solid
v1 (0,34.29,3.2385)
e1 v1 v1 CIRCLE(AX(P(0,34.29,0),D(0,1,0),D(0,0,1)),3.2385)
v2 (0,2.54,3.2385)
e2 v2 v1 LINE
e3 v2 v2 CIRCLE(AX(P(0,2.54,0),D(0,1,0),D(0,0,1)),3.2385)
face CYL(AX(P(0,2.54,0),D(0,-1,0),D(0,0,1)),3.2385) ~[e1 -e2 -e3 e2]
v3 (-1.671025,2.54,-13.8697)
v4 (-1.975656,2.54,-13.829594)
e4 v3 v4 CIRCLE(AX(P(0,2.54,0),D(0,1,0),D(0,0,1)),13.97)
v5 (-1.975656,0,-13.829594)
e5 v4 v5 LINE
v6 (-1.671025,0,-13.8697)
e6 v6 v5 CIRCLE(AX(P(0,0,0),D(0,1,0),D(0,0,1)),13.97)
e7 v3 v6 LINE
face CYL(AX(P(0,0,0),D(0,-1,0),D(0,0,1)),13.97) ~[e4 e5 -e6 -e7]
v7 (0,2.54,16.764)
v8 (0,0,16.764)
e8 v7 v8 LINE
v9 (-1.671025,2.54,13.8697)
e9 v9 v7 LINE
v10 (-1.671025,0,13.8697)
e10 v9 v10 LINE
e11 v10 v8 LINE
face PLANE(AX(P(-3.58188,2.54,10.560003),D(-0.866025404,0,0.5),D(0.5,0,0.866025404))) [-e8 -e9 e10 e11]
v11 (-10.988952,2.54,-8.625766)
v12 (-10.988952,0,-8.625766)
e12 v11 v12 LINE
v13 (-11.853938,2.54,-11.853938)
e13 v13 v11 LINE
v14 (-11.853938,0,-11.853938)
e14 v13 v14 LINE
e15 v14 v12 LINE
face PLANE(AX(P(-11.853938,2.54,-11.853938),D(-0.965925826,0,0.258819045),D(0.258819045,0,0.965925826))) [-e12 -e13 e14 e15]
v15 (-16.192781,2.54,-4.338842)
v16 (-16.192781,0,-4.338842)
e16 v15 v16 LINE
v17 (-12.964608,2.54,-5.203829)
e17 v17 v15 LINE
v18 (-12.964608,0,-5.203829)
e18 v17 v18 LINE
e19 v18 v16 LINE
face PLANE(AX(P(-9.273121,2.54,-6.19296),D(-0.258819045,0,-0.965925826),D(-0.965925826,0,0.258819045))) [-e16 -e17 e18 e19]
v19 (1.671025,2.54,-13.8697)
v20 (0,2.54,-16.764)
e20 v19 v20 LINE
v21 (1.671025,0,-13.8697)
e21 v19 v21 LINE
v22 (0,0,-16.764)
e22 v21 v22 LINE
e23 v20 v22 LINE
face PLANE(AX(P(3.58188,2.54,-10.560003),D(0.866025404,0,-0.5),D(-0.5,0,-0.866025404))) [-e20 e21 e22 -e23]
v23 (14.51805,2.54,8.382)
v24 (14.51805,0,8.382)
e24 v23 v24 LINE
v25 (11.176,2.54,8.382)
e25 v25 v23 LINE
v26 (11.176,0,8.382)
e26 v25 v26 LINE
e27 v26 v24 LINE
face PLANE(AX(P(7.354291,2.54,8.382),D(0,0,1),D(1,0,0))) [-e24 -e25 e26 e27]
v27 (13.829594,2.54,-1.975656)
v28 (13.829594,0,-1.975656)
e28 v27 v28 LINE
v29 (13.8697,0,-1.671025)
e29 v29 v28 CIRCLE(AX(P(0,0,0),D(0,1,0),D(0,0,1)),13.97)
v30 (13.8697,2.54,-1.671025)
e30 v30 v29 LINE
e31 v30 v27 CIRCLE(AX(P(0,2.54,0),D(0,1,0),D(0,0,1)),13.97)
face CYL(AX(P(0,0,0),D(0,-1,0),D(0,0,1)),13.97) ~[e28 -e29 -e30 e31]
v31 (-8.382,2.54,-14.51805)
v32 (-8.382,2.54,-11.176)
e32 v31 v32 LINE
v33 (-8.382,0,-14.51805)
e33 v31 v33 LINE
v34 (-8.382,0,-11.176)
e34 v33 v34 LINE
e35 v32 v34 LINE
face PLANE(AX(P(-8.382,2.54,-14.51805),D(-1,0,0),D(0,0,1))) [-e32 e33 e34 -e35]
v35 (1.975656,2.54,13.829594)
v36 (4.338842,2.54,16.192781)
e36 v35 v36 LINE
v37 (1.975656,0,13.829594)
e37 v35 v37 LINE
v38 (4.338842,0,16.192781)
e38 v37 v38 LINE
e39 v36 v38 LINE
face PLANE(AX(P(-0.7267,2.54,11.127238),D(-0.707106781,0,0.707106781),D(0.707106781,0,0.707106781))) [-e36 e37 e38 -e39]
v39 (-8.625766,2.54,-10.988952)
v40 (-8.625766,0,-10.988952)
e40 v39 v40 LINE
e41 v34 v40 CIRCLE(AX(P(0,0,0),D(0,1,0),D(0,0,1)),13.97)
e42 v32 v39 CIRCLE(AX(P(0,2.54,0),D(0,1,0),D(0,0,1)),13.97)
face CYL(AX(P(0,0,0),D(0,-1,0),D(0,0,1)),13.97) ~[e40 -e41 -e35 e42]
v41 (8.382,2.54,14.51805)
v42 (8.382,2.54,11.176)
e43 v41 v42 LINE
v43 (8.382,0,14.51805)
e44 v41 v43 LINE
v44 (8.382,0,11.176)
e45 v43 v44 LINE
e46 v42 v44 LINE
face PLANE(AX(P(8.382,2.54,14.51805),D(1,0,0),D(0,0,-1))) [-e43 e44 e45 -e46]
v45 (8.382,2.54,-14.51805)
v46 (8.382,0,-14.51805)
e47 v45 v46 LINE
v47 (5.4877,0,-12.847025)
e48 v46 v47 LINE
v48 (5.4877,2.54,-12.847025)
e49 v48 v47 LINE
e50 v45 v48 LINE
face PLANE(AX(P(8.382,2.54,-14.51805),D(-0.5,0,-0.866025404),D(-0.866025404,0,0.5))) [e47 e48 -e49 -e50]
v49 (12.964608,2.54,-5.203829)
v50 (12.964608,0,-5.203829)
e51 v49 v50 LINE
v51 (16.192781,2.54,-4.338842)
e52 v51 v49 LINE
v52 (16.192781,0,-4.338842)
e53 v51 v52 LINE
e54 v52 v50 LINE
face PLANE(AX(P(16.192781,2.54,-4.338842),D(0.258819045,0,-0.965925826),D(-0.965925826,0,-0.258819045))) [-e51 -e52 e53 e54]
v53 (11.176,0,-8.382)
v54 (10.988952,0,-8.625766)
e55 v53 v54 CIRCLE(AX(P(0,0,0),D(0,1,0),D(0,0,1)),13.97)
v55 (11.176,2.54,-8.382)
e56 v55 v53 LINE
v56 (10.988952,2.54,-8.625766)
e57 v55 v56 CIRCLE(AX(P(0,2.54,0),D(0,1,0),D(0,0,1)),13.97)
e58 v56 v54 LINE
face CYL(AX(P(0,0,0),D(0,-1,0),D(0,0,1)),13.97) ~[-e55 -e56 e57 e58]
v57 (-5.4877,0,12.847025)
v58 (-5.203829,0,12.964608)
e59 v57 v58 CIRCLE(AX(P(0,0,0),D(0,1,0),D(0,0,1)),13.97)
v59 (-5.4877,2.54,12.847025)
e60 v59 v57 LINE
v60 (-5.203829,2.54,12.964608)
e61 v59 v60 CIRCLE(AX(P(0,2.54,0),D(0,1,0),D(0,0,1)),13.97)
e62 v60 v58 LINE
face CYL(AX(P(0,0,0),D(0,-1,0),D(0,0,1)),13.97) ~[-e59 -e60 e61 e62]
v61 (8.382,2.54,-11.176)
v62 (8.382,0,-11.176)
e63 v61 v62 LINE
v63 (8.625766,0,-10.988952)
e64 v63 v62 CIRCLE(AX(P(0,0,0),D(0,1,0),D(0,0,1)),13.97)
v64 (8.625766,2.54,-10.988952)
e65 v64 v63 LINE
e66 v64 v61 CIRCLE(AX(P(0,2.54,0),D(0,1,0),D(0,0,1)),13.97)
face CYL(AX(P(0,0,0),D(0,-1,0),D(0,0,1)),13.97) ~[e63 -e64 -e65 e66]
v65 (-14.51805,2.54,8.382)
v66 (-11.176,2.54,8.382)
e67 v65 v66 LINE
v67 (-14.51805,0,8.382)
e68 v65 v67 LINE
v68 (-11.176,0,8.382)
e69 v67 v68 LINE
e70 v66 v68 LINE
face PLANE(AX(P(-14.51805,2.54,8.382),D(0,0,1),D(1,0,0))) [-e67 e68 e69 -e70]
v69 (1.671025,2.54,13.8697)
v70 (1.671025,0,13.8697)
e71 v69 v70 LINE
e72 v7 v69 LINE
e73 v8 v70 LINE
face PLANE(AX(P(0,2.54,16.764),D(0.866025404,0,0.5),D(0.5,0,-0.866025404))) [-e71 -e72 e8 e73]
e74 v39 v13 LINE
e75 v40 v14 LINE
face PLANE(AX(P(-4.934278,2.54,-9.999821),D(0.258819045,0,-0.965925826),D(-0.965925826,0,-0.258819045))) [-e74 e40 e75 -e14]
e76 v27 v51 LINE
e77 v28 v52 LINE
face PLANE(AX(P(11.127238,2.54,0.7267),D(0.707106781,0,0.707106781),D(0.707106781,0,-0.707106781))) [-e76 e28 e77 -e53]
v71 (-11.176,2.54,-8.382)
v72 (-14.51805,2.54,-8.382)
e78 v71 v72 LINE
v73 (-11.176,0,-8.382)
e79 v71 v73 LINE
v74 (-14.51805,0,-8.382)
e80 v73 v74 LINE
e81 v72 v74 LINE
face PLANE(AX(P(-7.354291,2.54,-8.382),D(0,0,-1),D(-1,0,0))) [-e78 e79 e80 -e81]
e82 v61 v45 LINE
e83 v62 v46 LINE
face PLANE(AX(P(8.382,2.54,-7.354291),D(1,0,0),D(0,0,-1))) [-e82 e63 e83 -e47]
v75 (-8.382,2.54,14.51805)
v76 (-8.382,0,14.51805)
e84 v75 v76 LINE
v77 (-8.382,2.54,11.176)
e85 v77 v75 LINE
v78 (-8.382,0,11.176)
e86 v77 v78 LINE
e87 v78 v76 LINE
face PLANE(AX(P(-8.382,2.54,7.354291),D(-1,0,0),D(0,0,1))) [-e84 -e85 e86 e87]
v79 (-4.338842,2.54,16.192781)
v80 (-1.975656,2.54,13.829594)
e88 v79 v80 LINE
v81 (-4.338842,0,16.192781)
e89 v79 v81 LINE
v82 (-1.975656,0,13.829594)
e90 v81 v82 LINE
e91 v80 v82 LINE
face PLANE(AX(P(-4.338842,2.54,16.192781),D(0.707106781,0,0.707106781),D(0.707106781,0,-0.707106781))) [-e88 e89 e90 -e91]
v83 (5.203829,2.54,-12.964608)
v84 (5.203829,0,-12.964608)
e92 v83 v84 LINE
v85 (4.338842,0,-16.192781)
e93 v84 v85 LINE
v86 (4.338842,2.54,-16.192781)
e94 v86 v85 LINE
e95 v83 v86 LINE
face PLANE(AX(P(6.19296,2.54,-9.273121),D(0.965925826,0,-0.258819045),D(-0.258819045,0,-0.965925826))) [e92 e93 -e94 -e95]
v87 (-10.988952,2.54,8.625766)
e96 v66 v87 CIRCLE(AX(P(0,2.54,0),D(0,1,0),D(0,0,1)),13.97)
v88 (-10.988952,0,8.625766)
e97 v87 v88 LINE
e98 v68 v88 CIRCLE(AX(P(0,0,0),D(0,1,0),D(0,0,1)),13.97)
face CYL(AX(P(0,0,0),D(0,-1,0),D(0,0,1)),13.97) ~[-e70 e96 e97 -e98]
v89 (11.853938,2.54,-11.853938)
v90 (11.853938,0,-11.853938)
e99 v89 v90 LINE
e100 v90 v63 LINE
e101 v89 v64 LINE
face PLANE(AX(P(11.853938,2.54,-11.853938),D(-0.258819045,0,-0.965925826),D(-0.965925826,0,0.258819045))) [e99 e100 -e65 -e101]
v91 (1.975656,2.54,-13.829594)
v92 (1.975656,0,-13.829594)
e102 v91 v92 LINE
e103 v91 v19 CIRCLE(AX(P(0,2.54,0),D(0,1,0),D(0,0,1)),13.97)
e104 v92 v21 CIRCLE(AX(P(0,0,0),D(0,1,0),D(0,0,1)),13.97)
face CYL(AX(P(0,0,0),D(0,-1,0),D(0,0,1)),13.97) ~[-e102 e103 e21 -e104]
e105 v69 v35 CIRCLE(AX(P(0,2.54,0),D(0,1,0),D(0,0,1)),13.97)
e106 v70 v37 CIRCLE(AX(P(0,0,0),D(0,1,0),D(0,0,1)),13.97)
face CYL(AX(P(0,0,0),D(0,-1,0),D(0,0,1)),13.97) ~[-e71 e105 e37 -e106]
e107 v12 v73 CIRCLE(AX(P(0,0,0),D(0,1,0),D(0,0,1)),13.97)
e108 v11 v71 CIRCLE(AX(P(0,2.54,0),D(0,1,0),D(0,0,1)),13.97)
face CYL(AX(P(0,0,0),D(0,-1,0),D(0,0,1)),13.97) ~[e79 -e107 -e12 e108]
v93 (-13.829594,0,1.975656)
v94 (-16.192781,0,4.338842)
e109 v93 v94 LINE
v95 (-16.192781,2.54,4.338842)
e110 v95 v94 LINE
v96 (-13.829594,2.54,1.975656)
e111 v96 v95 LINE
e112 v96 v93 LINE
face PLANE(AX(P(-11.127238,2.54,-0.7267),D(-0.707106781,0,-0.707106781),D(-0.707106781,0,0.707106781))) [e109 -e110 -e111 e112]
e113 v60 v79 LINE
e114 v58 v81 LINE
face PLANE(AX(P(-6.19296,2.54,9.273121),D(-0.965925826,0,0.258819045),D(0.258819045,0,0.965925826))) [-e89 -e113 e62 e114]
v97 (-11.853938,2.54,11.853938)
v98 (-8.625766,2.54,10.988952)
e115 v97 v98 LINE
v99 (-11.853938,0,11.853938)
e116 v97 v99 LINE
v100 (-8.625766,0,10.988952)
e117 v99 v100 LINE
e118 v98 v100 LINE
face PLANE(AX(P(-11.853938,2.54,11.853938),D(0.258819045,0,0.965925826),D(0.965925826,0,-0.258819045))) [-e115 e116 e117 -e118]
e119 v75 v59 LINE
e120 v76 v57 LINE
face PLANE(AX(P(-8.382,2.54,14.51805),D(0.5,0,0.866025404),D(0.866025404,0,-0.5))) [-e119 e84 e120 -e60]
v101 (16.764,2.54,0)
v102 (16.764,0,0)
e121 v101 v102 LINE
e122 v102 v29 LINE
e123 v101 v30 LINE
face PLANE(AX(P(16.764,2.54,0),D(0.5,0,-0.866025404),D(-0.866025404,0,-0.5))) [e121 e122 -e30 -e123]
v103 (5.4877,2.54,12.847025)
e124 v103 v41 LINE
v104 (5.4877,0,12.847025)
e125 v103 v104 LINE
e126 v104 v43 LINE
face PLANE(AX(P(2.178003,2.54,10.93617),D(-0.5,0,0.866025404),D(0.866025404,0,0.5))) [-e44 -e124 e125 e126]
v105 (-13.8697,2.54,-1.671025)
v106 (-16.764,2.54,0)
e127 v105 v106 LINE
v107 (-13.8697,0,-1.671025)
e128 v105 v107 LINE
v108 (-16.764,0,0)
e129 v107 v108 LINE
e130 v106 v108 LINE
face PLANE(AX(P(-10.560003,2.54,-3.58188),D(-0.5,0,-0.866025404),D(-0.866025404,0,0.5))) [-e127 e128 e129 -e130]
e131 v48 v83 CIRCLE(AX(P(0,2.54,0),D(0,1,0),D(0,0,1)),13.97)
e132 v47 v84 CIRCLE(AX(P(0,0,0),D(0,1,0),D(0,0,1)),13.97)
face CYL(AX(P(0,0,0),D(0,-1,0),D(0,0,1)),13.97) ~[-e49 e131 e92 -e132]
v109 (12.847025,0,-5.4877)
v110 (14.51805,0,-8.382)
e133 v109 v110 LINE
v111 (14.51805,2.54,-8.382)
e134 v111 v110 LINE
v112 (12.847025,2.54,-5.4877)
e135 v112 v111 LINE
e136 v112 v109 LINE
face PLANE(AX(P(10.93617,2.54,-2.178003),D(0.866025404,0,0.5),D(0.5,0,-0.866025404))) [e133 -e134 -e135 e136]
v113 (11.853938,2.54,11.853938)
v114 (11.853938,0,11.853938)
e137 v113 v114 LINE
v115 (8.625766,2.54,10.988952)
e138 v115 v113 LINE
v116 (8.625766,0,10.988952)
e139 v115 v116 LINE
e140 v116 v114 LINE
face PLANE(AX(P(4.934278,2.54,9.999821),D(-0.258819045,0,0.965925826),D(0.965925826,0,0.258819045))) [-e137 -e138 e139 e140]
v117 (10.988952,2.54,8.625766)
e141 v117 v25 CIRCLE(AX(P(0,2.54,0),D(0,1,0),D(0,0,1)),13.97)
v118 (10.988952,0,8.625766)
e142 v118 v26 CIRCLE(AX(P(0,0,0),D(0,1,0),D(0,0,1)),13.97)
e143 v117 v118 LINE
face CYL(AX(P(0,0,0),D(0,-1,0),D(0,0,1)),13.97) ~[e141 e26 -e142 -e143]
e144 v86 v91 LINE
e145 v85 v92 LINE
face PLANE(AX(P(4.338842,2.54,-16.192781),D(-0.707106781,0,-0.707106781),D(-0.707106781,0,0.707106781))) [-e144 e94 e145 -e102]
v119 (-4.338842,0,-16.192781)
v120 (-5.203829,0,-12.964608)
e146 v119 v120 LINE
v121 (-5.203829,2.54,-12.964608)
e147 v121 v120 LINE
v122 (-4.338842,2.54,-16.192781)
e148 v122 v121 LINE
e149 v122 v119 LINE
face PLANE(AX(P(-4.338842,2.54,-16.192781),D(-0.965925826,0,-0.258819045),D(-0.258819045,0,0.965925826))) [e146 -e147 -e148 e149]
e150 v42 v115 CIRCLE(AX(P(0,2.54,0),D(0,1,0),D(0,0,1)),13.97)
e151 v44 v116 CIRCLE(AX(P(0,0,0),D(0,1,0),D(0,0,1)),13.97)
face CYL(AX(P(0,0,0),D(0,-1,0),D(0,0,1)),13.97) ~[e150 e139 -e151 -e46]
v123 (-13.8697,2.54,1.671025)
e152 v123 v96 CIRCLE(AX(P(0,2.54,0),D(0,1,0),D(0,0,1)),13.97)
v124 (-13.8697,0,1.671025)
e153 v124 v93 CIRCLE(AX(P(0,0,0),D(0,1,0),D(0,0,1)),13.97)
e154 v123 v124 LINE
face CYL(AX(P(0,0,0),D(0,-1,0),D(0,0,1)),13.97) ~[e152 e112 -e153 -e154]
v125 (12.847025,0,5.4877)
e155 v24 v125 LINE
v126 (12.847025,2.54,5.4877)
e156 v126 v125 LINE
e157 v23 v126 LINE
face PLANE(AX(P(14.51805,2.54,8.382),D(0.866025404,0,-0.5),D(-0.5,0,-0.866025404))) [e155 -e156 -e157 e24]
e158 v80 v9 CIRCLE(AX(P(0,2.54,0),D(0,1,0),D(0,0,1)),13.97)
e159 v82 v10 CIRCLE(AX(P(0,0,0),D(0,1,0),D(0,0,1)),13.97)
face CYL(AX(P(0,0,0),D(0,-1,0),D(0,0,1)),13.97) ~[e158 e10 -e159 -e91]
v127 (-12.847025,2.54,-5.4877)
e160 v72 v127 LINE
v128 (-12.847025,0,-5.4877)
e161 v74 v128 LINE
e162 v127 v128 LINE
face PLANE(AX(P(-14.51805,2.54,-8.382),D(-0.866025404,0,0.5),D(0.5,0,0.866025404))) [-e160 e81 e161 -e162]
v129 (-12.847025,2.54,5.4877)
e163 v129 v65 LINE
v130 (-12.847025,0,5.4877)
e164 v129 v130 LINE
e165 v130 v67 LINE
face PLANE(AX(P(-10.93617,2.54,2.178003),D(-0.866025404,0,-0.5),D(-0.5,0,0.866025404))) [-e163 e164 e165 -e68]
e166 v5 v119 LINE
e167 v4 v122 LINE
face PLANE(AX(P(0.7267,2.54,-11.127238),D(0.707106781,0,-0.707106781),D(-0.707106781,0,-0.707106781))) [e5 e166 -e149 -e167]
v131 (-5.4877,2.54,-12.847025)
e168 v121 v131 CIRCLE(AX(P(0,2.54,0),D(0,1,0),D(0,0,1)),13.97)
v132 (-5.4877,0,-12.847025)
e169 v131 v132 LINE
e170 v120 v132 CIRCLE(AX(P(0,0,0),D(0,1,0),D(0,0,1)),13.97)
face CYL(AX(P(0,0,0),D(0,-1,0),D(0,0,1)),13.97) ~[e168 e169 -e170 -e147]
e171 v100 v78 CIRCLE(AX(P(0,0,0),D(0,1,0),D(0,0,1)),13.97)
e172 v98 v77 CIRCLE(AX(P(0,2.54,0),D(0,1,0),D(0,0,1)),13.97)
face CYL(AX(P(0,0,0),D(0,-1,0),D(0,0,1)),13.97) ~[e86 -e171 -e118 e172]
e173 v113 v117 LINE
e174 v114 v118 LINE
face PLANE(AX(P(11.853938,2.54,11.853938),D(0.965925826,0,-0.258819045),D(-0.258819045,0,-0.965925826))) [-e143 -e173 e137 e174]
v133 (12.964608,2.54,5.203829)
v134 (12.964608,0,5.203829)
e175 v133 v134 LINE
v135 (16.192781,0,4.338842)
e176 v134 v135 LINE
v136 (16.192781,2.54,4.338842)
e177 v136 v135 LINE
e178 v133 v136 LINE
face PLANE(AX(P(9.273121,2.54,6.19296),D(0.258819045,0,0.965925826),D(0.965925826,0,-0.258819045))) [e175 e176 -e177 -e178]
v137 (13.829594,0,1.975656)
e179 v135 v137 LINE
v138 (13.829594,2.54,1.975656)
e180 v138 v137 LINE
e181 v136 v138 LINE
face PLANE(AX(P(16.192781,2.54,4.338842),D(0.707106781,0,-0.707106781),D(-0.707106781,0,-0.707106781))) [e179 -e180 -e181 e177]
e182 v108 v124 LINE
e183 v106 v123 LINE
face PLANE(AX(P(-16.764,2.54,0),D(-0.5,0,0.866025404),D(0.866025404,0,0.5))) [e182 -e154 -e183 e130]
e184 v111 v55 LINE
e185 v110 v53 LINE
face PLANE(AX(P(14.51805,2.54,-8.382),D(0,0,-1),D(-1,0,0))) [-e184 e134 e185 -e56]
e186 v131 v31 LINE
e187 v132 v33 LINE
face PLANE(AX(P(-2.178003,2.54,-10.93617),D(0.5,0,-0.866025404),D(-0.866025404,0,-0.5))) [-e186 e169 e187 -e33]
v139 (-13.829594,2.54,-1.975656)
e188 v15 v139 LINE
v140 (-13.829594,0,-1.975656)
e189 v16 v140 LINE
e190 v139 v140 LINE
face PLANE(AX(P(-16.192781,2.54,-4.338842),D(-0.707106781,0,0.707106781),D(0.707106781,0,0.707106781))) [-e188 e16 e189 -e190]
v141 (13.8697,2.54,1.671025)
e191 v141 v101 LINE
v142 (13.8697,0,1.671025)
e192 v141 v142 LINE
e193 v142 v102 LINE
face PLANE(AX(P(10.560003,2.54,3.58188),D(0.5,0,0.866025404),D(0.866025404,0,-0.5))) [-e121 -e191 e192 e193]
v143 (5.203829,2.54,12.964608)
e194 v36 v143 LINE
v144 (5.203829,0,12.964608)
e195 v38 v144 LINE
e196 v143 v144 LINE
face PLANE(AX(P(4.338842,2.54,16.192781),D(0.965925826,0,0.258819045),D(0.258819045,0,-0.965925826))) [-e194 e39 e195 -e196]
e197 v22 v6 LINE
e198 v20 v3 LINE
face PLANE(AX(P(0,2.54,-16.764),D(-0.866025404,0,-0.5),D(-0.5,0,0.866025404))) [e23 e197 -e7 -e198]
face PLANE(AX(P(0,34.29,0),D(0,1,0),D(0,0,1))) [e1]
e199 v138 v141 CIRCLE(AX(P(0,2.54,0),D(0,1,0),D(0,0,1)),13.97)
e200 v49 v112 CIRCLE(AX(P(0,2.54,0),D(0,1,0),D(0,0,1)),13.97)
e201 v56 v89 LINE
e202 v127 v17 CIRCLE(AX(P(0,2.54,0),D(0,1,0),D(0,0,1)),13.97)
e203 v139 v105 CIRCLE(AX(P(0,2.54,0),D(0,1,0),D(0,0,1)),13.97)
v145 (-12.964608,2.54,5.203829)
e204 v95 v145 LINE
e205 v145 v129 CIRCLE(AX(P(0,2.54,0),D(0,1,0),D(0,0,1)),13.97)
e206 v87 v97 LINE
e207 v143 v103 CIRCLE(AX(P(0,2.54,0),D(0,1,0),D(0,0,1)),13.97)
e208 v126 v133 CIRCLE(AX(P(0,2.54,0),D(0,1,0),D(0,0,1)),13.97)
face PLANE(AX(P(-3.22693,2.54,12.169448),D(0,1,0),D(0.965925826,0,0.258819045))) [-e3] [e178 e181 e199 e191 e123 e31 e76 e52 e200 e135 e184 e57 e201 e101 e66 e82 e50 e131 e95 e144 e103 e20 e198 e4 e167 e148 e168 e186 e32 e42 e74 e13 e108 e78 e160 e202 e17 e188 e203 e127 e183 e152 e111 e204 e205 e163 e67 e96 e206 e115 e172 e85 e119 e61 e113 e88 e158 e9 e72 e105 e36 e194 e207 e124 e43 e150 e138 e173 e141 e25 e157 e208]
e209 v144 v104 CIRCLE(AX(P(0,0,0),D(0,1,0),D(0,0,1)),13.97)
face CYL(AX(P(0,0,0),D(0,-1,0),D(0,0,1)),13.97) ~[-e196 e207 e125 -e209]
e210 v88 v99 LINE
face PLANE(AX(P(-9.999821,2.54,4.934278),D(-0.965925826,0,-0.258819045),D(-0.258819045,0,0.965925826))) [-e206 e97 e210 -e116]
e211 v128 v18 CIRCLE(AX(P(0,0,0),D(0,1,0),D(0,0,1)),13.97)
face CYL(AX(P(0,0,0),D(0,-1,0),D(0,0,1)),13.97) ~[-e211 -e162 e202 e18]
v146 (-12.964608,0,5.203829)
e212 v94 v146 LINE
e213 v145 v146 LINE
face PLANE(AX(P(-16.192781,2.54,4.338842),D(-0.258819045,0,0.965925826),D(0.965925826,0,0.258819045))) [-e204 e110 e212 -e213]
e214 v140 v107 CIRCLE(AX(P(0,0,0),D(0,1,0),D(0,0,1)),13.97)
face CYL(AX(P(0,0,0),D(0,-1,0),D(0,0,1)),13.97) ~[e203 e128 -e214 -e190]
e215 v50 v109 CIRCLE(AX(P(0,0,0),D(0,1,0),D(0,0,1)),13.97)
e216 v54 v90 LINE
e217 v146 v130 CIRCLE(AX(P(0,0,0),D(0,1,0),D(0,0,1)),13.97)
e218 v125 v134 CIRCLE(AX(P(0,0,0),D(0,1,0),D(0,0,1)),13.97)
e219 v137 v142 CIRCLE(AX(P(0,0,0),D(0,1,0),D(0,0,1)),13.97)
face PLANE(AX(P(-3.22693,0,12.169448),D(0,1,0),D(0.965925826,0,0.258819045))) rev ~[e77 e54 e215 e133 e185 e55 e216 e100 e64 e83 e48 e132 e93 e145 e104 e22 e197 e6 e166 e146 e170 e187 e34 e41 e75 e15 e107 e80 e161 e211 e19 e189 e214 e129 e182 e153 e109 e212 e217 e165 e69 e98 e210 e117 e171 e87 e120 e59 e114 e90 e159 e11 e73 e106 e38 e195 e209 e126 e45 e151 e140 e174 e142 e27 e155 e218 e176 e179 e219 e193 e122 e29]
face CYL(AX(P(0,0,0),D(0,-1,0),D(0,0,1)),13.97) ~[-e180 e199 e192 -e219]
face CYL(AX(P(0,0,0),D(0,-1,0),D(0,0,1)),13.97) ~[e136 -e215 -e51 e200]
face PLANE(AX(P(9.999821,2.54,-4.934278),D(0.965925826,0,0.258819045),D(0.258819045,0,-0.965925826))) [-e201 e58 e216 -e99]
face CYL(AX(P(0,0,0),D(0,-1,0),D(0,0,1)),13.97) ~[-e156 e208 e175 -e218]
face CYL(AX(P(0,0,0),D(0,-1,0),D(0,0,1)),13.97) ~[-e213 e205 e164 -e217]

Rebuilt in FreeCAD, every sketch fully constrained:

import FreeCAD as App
import Part
import Sketcher
Q = App.Units.Quantity


def add_polygon(sketch, points):
    """Adds a closed chain of lines whose ends are joined by coincident constraints."""
    first, n = sketch.GeometryCount, len(points)
    for a, b in zip(points, points[1:] + points[:1]):
        sketch.addGeometry(Part.LineSegment(App.Vector(*a, 0), App.Vector(*b, 0)), False)
    for i in range(n):
        sketch.addConstraint(Sketcher.Constraint("Coincident", first + i, 2, first + (i + 1) % n, 1))

doc = App.newDocument("Part")
body = doc.addObject("PartDesign::Body", "Body")

# Sketch on XZ plane
sketch1 = body.newObject("Sketcher::SketchObject", "Sketch")
sketch1.AttachmentSupport = (doc.getObject("XZ_Plane"), [""])
sketch1.MapMode = "FlatFace"
sketch1.addGeometry(Part.Circle(App.Vector(0, 0, 0), App.Vector(0, 0, 1), 14), False)
sketch1.addConstraint(Sketcher.Constraint("Coincident", 0, 3, -1, 1))
sketch1.addConstraint(Sketcher.Constraint("Diameter", 0, Q("1.1 in")))
pad1 = body.newObject("PartDesign::Pad", "Pad")
pad1.Profile = sketch1
pad1.Length = Q("0.1 in")
pad1.Reversed = True

# Sketch on XZ plane
sketch2 = body.newObject("Sketcher::SketchObject", "Sketch001")
sketch2.AttachmentSupport = (doc.getObject("XZ_Plane"), [""])
sketch2.MapMode = "FlatFace"
sketch2.AttachmentOffset = App.Placement(App.Vector(0, 0, -0.1 * 25.4), App.Rotation())
add_polygon(sketch2, [(0, 17), (4, 10), (-4, 11)])  # lines 0-2
sketch2.addConstraint(Sketcher.Constraint("PointOnObject", 2, 2, -2))
sketch2.addConstraint(Sketcher.Constraint("Angle", 0, Q("-60 deg")))
sketch2.addConstraint(Sketcher.Constraint("Angle", 2, Q("60 deg")))
sketch2.addConstraint(Sketcher.Constraint("DistanceY", -1, 1, 2, 2, Q("0.66 in")))
sketch2.addConstraint(Sketcher.Constraint("Distance", 0, Q("7.2946 mm")))
sketch2.addConstraint(Sketcher.Constraint("Distance", 2, Q("7.163759 mm")))
pad2 = body.newObject("PartDesign::Pad", "Pad001")
pad2.Profile = sketch2
pad2.Length = Q("0.1 in")
doc.recompute()

polarpattern = body.newObject("PartDesign::PolarPattern", "PolarPattern")
polarpattern.Originals = [pad2]
polarpattern.Axis = (doc.getObject("Y_Axis"), [""])
polarpattern.Angle = 360
polarpattern.Occurrences = 24
body.Tip = polarpattern

# Sketch on XZ plane
sketch3 = body.newObject("Sketcher::SketchObject", "Sketch002")
sketch3.AttachmentSupport = (doc.getObject("XZ_Plane"), [""])
sketch3.MapMode = "FlatFace"
sketch3.AttachmentOffset = App.Placement(App.Vector(0, 0, -0.1 * 25.4), App.Rotation())
sketch3.addGeometry(Part.Circle(App.Vector(0, 0, 0), App.Vector(0, 0, 1), 3.2), False)
sketch3.addConstraint(Sketcher.Constraint("Coincident", 0, 3, -1, 1))
sketch3.addConstraint(Sketcher.Constraint("Diameter", 0, Q("0.255 in")))
pad3 = body.newObject("PartDesign::Pad", "Pad002")
pad3.Profile = sketch3
pad3.Length = Q("1.25 in")
pad3.Reversed = True

doc.recompute()
